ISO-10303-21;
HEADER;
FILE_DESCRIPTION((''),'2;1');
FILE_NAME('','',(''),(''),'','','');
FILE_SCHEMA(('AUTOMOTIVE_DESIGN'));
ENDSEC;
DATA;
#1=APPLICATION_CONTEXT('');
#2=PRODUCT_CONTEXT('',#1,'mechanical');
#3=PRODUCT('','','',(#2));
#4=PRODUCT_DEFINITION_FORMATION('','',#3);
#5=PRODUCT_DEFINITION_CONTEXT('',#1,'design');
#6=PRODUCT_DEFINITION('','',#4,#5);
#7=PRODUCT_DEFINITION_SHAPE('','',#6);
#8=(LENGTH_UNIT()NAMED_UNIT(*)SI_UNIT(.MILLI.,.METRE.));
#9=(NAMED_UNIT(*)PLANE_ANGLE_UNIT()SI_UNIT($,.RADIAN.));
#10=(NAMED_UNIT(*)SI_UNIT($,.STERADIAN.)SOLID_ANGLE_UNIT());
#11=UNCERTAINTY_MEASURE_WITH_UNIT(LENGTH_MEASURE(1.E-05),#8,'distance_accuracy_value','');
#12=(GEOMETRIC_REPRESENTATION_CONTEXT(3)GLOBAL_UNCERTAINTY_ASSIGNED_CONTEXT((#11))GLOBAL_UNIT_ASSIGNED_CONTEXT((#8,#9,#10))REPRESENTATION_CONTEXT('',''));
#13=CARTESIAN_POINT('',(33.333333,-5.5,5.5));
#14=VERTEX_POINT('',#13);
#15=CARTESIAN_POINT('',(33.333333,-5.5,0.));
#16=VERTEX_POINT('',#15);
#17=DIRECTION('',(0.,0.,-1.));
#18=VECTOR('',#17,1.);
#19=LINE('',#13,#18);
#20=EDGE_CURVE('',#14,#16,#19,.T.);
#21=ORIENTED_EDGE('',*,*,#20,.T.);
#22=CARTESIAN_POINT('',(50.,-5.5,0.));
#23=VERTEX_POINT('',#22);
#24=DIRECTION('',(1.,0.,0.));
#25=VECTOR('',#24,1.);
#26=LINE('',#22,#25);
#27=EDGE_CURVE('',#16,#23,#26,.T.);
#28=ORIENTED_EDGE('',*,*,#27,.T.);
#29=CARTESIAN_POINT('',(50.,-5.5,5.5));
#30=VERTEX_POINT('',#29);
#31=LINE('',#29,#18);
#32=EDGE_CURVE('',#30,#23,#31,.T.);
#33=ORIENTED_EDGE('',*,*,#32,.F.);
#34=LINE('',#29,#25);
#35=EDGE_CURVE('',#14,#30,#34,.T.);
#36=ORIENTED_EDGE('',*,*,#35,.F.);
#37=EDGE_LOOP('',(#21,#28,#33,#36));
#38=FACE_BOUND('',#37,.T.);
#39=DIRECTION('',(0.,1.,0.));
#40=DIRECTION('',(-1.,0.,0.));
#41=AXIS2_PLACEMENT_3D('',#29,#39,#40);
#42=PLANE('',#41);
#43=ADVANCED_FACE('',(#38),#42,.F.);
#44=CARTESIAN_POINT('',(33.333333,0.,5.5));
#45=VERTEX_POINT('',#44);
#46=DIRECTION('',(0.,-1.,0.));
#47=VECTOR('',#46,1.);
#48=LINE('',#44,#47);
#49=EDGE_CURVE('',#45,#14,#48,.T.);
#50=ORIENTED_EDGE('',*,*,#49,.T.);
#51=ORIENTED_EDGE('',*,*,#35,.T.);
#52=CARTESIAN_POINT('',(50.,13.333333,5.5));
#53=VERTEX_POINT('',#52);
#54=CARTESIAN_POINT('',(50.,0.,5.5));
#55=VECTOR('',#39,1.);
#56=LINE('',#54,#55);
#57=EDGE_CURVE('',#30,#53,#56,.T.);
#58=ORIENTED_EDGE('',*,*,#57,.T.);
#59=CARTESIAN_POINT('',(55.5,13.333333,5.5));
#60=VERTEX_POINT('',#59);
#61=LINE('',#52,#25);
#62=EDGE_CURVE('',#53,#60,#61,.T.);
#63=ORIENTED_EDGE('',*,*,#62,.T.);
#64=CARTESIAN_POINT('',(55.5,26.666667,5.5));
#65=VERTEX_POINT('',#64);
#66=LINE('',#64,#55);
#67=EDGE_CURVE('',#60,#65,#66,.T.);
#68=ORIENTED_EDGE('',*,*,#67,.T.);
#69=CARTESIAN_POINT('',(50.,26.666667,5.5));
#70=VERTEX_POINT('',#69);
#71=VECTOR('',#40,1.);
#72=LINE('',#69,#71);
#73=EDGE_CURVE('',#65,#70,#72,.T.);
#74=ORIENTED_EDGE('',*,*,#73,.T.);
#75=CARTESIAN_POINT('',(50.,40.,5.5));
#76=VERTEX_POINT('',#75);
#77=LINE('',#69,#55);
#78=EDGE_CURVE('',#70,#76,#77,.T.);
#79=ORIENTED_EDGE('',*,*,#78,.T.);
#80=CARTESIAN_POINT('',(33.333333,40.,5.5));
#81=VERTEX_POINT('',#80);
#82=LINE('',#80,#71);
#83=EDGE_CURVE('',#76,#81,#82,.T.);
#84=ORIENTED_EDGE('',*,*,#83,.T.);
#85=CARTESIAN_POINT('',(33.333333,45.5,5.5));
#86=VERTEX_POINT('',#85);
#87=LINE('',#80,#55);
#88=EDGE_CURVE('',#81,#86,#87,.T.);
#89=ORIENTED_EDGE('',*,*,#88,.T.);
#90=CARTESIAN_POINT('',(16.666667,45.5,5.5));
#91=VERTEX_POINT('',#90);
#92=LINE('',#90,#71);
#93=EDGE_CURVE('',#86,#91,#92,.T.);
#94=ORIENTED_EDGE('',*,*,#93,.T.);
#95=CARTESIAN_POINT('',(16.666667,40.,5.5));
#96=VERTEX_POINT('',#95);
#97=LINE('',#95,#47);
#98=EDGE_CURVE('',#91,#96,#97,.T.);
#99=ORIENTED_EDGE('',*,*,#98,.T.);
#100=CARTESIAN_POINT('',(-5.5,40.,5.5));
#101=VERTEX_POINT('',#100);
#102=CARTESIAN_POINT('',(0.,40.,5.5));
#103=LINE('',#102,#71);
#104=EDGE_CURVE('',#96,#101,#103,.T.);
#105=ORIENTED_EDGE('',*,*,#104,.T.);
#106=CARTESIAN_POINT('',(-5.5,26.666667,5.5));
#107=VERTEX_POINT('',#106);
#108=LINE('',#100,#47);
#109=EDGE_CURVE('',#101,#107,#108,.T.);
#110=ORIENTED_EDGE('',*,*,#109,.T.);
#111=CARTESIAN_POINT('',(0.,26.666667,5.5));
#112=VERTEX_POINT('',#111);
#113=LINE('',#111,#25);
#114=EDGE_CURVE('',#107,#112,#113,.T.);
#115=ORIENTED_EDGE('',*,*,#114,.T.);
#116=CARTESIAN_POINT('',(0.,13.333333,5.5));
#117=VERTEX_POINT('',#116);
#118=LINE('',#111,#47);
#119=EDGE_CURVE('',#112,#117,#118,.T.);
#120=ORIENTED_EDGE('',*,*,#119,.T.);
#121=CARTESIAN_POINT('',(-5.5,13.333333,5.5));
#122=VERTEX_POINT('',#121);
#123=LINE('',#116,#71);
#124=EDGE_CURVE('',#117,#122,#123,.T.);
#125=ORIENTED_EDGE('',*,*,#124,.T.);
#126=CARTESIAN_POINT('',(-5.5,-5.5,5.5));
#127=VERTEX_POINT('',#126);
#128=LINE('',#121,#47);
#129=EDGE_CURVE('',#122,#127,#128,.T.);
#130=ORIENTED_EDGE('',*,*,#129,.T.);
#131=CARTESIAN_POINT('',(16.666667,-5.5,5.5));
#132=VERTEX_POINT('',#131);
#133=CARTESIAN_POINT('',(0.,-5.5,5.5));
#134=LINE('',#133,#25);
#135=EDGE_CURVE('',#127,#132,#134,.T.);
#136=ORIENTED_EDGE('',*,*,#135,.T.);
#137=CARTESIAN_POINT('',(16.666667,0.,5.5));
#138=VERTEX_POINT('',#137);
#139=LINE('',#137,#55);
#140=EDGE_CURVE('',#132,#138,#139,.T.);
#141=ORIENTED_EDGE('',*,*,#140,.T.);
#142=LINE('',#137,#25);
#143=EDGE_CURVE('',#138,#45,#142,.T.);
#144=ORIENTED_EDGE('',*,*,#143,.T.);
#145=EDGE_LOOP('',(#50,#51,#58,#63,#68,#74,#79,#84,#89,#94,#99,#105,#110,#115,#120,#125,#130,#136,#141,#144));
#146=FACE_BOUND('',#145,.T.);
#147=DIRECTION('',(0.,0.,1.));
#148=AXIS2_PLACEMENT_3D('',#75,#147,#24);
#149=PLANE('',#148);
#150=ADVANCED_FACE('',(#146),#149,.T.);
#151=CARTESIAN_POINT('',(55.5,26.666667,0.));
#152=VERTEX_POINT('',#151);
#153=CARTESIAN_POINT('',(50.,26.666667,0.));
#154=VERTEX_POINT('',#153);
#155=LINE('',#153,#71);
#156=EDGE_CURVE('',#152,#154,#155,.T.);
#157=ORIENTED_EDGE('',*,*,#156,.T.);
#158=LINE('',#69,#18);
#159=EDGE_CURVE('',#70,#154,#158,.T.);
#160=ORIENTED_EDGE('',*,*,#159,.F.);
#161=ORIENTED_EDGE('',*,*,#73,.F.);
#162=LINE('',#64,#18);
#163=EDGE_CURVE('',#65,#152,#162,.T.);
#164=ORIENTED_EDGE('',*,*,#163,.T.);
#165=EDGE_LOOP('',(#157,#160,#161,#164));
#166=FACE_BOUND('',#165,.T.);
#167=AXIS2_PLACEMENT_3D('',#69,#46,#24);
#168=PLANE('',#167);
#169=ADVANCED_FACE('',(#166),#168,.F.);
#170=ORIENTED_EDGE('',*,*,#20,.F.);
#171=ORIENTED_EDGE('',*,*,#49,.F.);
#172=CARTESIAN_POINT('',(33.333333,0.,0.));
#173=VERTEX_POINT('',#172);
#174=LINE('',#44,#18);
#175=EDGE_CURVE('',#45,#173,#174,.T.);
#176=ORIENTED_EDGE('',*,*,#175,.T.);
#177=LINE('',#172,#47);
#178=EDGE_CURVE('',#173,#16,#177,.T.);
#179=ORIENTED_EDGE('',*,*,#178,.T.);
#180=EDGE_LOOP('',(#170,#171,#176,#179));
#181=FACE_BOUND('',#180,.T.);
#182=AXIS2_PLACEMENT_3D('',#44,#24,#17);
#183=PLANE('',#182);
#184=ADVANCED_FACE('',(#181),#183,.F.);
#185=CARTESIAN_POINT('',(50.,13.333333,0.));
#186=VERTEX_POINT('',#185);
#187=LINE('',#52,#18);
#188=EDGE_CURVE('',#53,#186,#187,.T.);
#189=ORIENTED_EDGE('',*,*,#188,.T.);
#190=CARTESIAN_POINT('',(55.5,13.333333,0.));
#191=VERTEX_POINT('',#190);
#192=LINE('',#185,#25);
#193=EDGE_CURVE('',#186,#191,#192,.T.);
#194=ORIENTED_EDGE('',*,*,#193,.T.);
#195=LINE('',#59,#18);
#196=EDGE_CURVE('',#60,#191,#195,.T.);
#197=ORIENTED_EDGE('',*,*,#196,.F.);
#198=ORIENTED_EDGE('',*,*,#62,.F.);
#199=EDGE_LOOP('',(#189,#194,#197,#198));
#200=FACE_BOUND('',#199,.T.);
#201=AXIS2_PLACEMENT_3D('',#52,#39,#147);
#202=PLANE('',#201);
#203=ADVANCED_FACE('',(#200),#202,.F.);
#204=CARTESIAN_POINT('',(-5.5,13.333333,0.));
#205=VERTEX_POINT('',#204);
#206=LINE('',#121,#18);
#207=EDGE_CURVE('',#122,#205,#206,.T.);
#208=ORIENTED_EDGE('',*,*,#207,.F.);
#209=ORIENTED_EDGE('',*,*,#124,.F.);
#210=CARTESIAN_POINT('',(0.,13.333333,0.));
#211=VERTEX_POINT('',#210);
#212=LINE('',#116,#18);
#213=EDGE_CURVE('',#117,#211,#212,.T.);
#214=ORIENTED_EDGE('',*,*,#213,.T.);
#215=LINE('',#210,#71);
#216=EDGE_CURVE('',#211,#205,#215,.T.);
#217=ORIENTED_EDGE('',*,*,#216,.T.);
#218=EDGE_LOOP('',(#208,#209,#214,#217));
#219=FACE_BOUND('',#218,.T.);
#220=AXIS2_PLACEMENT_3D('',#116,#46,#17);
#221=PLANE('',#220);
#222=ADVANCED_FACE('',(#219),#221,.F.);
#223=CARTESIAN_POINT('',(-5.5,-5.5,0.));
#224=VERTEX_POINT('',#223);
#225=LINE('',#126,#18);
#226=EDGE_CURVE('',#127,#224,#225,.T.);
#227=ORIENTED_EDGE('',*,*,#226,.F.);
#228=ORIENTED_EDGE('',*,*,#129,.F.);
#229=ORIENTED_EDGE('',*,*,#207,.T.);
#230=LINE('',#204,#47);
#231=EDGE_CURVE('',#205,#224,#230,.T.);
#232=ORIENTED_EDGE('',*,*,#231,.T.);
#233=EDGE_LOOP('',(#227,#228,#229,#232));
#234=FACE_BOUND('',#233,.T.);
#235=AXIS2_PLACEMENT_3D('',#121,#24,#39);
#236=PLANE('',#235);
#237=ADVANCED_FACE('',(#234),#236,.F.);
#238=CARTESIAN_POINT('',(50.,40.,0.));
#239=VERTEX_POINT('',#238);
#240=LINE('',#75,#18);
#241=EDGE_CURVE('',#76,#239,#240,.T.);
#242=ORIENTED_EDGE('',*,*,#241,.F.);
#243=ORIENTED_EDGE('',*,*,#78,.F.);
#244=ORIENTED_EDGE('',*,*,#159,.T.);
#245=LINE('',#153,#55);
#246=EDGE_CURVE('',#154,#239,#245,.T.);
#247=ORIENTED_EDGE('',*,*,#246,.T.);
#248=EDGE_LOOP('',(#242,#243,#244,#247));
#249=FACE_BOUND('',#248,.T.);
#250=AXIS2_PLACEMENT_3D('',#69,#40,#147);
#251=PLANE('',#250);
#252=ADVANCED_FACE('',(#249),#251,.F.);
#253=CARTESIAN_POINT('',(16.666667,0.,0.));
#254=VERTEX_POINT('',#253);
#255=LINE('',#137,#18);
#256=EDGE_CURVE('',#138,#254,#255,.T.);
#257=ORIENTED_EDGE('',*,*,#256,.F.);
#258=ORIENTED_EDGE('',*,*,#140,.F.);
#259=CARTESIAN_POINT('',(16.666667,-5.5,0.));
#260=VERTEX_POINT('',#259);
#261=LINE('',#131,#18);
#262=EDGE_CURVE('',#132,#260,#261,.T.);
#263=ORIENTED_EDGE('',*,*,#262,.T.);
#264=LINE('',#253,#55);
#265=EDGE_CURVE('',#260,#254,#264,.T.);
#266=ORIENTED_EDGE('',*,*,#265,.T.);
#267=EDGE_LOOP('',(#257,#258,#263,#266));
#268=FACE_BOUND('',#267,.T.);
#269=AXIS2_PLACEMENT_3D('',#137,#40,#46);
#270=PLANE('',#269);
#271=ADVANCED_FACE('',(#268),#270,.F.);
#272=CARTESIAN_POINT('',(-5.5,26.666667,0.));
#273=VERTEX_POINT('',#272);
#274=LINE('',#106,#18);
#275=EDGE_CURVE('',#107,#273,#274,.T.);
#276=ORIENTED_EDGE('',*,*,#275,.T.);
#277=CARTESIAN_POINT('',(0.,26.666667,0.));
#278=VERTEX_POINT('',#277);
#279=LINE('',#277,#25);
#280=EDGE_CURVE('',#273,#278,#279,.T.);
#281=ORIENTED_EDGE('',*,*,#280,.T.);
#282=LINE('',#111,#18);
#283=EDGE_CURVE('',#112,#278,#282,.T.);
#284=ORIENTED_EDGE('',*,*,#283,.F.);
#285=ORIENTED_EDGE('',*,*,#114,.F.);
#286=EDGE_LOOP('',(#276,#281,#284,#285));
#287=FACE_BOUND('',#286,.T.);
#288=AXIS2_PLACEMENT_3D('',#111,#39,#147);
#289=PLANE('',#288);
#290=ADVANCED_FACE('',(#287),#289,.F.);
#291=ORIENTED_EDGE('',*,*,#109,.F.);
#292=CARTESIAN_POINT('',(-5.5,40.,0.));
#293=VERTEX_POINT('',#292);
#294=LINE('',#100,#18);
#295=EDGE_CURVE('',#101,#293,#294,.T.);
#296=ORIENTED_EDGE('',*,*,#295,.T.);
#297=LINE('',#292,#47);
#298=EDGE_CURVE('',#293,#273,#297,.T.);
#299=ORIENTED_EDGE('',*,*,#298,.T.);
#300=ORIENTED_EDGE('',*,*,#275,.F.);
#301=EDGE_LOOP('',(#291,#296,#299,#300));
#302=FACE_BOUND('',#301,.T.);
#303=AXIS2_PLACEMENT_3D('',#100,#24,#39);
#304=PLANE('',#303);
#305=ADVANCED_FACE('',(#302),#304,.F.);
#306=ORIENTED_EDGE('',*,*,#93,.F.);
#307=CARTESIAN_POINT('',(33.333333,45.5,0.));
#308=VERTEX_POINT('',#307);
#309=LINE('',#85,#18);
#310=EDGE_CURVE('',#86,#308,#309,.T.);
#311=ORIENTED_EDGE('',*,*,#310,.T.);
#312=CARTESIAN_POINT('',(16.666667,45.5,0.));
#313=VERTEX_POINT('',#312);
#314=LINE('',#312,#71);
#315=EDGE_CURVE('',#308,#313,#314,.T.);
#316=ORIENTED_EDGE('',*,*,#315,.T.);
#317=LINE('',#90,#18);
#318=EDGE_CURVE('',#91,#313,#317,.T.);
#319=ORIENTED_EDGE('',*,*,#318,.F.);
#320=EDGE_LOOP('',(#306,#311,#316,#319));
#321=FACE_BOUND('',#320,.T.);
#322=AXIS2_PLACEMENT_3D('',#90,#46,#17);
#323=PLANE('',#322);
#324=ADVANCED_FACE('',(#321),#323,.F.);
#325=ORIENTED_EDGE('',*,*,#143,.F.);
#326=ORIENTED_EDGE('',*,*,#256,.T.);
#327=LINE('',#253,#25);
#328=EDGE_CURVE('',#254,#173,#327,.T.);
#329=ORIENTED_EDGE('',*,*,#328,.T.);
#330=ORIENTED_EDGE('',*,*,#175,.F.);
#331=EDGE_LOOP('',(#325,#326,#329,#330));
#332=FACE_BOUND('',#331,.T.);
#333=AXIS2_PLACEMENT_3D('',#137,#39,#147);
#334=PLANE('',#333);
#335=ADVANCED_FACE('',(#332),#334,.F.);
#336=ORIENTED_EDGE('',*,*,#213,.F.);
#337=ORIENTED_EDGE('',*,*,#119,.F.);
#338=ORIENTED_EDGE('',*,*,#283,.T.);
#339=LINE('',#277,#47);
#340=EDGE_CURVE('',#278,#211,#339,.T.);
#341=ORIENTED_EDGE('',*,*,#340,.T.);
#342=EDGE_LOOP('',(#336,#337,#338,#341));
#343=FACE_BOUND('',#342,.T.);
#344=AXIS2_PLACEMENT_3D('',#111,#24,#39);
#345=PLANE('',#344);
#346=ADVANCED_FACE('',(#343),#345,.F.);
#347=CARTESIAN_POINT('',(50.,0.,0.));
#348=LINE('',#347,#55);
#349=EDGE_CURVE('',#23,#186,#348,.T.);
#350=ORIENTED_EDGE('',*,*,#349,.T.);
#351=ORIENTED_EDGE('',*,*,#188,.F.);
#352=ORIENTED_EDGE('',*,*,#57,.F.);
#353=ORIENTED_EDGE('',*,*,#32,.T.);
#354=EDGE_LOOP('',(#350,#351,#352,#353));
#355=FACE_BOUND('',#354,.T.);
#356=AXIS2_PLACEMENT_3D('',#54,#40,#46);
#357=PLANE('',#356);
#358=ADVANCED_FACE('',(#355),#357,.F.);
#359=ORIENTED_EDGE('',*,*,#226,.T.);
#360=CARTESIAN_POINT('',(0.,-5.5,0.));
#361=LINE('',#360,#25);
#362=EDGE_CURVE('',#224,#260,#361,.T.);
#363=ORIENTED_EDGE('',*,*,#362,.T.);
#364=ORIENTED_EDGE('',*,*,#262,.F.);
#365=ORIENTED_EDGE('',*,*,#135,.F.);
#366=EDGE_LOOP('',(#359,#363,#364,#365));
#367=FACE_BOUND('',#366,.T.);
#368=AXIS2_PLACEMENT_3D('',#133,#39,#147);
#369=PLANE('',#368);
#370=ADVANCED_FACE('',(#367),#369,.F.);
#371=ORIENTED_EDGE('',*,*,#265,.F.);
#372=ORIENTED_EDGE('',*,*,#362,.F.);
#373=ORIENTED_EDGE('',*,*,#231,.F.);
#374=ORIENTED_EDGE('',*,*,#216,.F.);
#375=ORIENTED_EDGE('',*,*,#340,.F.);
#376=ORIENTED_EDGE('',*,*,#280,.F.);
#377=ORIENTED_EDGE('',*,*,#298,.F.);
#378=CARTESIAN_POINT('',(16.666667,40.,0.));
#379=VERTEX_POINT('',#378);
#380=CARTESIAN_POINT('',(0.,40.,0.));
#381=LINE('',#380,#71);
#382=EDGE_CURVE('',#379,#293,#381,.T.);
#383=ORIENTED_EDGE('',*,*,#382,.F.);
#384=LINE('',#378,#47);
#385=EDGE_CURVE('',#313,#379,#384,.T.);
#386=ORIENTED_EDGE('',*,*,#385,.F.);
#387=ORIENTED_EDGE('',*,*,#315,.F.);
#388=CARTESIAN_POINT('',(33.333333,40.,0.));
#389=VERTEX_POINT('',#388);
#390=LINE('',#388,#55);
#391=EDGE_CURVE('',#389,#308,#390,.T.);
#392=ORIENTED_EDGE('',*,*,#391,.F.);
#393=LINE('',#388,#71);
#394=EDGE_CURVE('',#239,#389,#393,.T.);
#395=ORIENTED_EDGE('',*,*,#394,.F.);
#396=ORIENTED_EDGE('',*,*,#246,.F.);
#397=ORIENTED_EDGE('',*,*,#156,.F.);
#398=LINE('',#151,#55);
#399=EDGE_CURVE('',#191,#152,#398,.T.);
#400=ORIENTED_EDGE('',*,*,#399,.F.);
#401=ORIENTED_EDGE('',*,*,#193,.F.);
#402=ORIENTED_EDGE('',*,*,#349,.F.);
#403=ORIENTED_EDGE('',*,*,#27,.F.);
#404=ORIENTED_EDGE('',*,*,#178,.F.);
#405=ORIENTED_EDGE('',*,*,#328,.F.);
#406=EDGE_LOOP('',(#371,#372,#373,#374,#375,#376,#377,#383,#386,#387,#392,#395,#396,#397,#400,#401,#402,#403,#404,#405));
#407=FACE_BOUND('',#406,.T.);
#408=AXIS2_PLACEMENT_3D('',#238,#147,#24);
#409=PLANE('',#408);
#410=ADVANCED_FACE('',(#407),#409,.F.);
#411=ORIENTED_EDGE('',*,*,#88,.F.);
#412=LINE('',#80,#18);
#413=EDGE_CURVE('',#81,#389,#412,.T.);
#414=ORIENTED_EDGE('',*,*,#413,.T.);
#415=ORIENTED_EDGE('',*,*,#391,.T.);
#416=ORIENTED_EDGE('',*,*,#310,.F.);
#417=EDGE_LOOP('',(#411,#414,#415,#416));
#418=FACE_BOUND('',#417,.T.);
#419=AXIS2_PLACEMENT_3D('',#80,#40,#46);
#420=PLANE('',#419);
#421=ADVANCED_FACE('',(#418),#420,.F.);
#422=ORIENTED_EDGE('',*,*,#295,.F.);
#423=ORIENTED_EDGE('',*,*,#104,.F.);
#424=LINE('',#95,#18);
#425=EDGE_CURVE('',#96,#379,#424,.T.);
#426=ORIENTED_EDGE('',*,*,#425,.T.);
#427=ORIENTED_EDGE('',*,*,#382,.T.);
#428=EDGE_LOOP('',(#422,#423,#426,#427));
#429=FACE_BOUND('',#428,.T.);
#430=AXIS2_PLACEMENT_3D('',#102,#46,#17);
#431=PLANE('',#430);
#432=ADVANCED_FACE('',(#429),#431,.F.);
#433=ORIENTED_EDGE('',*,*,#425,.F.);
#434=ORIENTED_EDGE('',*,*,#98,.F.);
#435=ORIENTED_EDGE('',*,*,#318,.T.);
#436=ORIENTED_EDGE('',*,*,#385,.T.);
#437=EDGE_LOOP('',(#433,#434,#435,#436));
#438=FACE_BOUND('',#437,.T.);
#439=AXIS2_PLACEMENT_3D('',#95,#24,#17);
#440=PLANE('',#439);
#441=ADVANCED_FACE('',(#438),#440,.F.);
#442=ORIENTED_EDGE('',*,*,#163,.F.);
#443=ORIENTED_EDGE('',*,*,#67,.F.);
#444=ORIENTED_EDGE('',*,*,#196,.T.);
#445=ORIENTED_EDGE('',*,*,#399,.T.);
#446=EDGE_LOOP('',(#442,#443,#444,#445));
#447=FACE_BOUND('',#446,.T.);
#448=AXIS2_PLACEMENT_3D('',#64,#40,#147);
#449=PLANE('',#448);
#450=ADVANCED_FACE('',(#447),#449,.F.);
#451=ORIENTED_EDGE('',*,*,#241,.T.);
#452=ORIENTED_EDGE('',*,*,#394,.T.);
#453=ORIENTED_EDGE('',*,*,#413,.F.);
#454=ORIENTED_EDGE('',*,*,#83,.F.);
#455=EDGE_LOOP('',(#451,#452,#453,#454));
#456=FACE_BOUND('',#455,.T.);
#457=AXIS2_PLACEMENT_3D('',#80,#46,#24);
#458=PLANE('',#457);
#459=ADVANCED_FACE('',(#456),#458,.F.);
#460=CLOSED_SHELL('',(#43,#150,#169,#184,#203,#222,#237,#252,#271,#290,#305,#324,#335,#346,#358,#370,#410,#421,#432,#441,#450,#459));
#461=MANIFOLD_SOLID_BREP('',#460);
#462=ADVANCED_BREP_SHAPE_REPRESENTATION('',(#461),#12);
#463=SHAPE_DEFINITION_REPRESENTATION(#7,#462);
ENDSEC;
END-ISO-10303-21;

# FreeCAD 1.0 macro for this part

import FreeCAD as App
import Part
import Sketcher
Q = App.Units.Quantity


def add_polygon(sketch, points):
    """Adds a closed chain of lines whose ends are joined by coincident constraints."""
    first, n = sketch.GeometryCount, len(points)
    for a, b in zip(points, points[1:] + points[:1]):
        sketch.addGeometry(Part.LineSegment(App.Vector(*a, 0), App.Vector(*b, 0)), False)
    for i in range(n):
        sketch.addConstraint(Sketcher.Constraint("Coincident", first + i, 2, first + (i + 1) % n, 1))

doc = App.newDocument("Part")
body = doc.addObject("PartDesign::Body", "Body")

sketch1 = doc.addObject("Sketcher::SketchObject", "Sketch")
body.addObject(sketch1)
sketch1.AttachmentSupport = (doc.XY_Plane, [""])
sketch1.MapMode = "FlatFace"
add_polygon(sketch1, [(17, 0), (33, 0), (33, -6), (50, -6), (50, 13), (56, 13), (56, 27), (50, 27), (50, 40), (33, 40), (33, 46), (17, 46), (17, 40), (-6, 40), (-6, 27), (0, 27), (0, 13), (-6, 13), (-6, -6), (17, -6)])
sketch1.addConstraint(Sketcher.Constraint("Horizontal", 0))
sketch1.addConstraint(Sketcher.Constraint("Vertical", 1))
sketch1.addConstraint(Sketcher.Constraint("Horizontal", 2))
sketch1.addConstraint(Sketcher.Constraint("Vertical", 3))
sketch1.addConstraint(Sketcher.Constraint("Horizontal", 4))
sketch1.addConstraint(Sketcher.Constraint("Vertical", 5))
sketch1.addConstraint(Sketcher.Constraint("Horizontal", 6))
sketch1.addConstraint(Sketcher.Constraint("Vertical", 7))
sketch1.addConstraint(Sketcher.Constraint("Horizontal", 8))
sketch1.addConstraint(Sketcher.Constraint("Vertical", 9))
sketch1.addConstraint(Sketcher.Constraint("Horizontal", 10))
sketch1.addConstraint(Sketcher.Constraint("Vertical", 11))
sketch1.addConstraint(Sketcher.Constraint("Horizontal", 12))
sketch1.addConstraint(Sketcher.Constraint("Vertical", 13))
sketch1.addConstraint(Sketcher.Constraint("Horizontal", 14))
sketch1.addConstraint(Sketcher.Constraint("Vertical", 15))
sketch1.addConstraint(Sketcher.Constraint("Horizontal", 16))
sketch1.addConstraint(Sketcher.Constraint("Vertical", 17))
sketch1.addConstraint(Sketcher.Constraint("Horizontal", 18))
sketch1.addConstraint(Sketcher.Constraint("Vertical", 19))
sketch1.addConstraint(Sketcher.Constraint("PointOnObject", 0, 2, -1))
sketch1.addConstraint(Sketcher.Constraint("PointOnObject", 14, 2, -2))
sketch1.addConstraint(Sketcher.Constraint("Horizontal", 8, 2, 11, 2))
sketch1.addConstraint(Sketcher.Constraint("Horizontal", 6, 2, 13, 2))
sketch1.addConstraint(Sketcher.Constraint("Horizontal", 4, 2, 15, 2))
sketch1.addConstraint(Sketcher.Constraint("Horizontal", 2, 2, 17, 2))
sketch1.addConstraint(Sketcher.Constraint("Vertical", 3, 2, 6, 2))
sketch1.addConstraint(Sketcher.Constraint("Vertical", 1, 2, 8, 2))
sketch1.addConstraint(Sketcher.Constraint("Vertical", 13, 2, 16, 2))
sketch1.addConstraint(Sketcher.Constraint("Vertical", 11, 2, 18, 2))
sketch1.addConstraint(Sketcher.Constraint("Equal", 0, 2))
sketch1.addConstraint(Sketcher.Constraint("Equal", 6, 14))
sketch1.addConstraint(Sketcher.Constraint("Equal", 16, 1))
sketch1.addConstraint(Sketcher.Constraint("Equal", 5, 7))
sketch1.addConstraint(Sketcher.Constraint("Equal", 1, 9))
sketch1.addConstraint(Sketcher.Constraint("DistanceX", 4, 1, 4, 2, Q("5.5 mm")))
sketch1.addConstraint(Sketcher.Constraint("DistanceX", -1, 1, 2, 2, Q("50 mm")))
sketch1.addConstraint(Sketcher.Constraint("DistanceY", -1, 1, 7, 2, Q("40 mm")))
sketch1.addConstraint(Sketcher.Constraint("DistanceX", 0, 1, 0, 2, Q("16.666667 mm")))
sketch1.addConstraint(Sketcher.Constraint("DistanceY", 3, 1, 3, 2, Q("18.833333 mm")))
pad1 = doc.addObject("PartDesign::Pad", "Pad")
body.addObject(pad1)
pad1.Profile = sketch1
pad1.Length = 5.5

doc.recompute()
